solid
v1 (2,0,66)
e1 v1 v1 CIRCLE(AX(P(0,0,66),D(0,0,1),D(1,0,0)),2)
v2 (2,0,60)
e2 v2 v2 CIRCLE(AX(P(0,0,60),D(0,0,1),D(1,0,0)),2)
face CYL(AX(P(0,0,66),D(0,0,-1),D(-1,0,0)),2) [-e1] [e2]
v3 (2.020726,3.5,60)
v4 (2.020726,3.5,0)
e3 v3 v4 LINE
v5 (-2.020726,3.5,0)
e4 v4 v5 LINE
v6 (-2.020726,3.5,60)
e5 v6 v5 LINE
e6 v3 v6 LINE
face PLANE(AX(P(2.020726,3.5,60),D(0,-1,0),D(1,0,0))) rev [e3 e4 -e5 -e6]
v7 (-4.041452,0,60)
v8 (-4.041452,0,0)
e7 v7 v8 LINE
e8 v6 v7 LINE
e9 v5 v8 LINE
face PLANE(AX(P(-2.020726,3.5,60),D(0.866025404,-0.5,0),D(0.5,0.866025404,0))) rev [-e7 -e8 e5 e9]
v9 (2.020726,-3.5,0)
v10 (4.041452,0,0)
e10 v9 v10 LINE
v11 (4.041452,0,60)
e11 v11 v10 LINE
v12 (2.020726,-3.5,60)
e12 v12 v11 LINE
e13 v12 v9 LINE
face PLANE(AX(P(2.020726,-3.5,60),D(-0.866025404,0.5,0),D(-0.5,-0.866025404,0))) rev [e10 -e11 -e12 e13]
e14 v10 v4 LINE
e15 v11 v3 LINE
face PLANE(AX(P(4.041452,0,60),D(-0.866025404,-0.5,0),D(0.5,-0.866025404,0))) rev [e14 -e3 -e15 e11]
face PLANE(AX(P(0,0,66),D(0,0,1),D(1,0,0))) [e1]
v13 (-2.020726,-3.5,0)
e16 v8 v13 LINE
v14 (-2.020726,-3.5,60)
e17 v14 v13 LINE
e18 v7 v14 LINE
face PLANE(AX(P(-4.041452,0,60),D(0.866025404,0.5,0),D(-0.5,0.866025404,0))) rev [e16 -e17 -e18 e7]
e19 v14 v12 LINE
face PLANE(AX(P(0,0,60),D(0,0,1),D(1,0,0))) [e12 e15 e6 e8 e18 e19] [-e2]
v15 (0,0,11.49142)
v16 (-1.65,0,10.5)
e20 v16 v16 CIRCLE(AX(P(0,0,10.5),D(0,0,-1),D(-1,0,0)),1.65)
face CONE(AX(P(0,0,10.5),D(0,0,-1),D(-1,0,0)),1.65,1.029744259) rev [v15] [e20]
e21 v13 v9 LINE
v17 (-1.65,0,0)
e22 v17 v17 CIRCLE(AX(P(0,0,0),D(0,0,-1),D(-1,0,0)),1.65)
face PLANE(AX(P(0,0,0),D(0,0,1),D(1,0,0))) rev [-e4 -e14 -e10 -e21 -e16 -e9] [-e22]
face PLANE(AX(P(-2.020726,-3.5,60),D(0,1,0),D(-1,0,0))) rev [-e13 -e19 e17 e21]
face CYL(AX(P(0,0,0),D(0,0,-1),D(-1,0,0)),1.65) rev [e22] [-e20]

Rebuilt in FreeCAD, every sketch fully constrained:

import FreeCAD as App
import Part
import Sketcher

V = App.Vector
Q = App.Units.Quantity


def add_polygon(sketch, points):
    """Adds a closed chain of lines whose ends are joined by coincident constraints."""
    first, n = sketch.GeometryCount, len(points)
    for a, b in zip(points, points[1:] + points[:1]):
        sketch.addGeometry(Part.LineSegment(App.Vector(*a, 0), App.Vector(*b, 0)), False)
    for i in range(n):
        sketch.addConstraint(Sketcher.Constraint("Coincident", first + i, 2, first + (i + 1) % n, 1))

doc = App.newDocument("Part")
body = doc.addObject("PartDesign::Body", "Body")

sketch1 = doc.addObject("Sketcher::SketchObject", "Sketch")
body.addObject(sketch1)
sketch1.AttachmentSupport = (doc.XY_Plane, [""])
sketch1.MapMode = "FlatFace"
add_polygon(sketch1, [(4.041452, 0), (2.020726, 3.5), (-2.020726, 3.5), (-4.041452, 0), (-2.020726, -3.5), (2.020726, -3.5)])
sketch1.addConstraint([
    Sketcher.Constraint("Horizontal", 1),
    Sketcher.Constraint("Horizontal", 4),
    Sketcher.Constraint("Symmetric", 0, 2, 3, 2, -1, 1),
    Sketcher.Constraint("Symmetric", 2, 2, 5, 2, -1, 1),
    Sketcher.Constraint("PointOnObject", 2, 2, -1),
    Sketcher.Constraint("Parallel", 2, 5),
    Sketcher.Constraint("Vertical", 1, 2, 3, 2),
    Sketcher.Constraint("Angle", 0, Q("120 deg")),
    Sketcher.Constraint("DistanceY", 3, 2, 1, 2, 7.0),
    Sketcher.Constraint("DistanceX", 1, 2, 1, 1, 4.041452),
])
pad1 = doc.addObject("PartDesign::Pad", "Pad")
body.addObject(pad1)
pad1.Profile = sketch1
pad1.Length = 60

sketch2 = doc.addObject("Sketcher::SketchObject", "Sketch001")
body.addObject(sketch2)
sketch2.AttachmentSupport = (doc.XY_Plane, [""])
sketch2.MapMode = "FlatFace"
sketch2.AttachmentOffset = App.Placement(V(0, 0, 60), App.Rotation())
sketch2.addGeometry(Part.Circle(V(0, 0, 0), V(0, 0, 1), 2), False)
sketch2.addConstraint([
    Sketcher.Constraint("Coincident", 0, 3, -1, 1),
    Sketcher.Constraint("Diameter", 0, 4.0),
])
pad2 = doc.addObject("PartDesign::Pad", "Pad001")
body.addObject(pad2)
pad2.Profile = sketch2
pad2.Length = 6

sketch3 = doc.addObject("Sketcher::SketchObject", "Sketch002")
body.addObject(sketch3)
sketch3.AttachmentSupport = (doc.XY_Plane, [""])
sketch3.MapMode = "FlatFace"
sketch3.addGeometry(Part.Circle(V(0, 0, 0), V(0, 0, 1), 1.65), False)
sketch3.addConstraint([
    Sketcher.Constraint("Coincident", 0, 3, -1, 1),
    Sketcher.Constraint("Diameter", 0, 3.3),
])
doc.recompute()
hole = doc.addObject("PartDesign::Hole", "Hole")
body.addObject(hole)
hole.Profile = sketch3
hole.ThreadType = "None"
hole.Diameter = 3.3
hole.DepthType = "Dimension"
hole.Depth = 10.5
hole.DrillPoint = "Angled"
hole.DrillPointAngle = 118
hole.Reversed = True

doc.recompute()
